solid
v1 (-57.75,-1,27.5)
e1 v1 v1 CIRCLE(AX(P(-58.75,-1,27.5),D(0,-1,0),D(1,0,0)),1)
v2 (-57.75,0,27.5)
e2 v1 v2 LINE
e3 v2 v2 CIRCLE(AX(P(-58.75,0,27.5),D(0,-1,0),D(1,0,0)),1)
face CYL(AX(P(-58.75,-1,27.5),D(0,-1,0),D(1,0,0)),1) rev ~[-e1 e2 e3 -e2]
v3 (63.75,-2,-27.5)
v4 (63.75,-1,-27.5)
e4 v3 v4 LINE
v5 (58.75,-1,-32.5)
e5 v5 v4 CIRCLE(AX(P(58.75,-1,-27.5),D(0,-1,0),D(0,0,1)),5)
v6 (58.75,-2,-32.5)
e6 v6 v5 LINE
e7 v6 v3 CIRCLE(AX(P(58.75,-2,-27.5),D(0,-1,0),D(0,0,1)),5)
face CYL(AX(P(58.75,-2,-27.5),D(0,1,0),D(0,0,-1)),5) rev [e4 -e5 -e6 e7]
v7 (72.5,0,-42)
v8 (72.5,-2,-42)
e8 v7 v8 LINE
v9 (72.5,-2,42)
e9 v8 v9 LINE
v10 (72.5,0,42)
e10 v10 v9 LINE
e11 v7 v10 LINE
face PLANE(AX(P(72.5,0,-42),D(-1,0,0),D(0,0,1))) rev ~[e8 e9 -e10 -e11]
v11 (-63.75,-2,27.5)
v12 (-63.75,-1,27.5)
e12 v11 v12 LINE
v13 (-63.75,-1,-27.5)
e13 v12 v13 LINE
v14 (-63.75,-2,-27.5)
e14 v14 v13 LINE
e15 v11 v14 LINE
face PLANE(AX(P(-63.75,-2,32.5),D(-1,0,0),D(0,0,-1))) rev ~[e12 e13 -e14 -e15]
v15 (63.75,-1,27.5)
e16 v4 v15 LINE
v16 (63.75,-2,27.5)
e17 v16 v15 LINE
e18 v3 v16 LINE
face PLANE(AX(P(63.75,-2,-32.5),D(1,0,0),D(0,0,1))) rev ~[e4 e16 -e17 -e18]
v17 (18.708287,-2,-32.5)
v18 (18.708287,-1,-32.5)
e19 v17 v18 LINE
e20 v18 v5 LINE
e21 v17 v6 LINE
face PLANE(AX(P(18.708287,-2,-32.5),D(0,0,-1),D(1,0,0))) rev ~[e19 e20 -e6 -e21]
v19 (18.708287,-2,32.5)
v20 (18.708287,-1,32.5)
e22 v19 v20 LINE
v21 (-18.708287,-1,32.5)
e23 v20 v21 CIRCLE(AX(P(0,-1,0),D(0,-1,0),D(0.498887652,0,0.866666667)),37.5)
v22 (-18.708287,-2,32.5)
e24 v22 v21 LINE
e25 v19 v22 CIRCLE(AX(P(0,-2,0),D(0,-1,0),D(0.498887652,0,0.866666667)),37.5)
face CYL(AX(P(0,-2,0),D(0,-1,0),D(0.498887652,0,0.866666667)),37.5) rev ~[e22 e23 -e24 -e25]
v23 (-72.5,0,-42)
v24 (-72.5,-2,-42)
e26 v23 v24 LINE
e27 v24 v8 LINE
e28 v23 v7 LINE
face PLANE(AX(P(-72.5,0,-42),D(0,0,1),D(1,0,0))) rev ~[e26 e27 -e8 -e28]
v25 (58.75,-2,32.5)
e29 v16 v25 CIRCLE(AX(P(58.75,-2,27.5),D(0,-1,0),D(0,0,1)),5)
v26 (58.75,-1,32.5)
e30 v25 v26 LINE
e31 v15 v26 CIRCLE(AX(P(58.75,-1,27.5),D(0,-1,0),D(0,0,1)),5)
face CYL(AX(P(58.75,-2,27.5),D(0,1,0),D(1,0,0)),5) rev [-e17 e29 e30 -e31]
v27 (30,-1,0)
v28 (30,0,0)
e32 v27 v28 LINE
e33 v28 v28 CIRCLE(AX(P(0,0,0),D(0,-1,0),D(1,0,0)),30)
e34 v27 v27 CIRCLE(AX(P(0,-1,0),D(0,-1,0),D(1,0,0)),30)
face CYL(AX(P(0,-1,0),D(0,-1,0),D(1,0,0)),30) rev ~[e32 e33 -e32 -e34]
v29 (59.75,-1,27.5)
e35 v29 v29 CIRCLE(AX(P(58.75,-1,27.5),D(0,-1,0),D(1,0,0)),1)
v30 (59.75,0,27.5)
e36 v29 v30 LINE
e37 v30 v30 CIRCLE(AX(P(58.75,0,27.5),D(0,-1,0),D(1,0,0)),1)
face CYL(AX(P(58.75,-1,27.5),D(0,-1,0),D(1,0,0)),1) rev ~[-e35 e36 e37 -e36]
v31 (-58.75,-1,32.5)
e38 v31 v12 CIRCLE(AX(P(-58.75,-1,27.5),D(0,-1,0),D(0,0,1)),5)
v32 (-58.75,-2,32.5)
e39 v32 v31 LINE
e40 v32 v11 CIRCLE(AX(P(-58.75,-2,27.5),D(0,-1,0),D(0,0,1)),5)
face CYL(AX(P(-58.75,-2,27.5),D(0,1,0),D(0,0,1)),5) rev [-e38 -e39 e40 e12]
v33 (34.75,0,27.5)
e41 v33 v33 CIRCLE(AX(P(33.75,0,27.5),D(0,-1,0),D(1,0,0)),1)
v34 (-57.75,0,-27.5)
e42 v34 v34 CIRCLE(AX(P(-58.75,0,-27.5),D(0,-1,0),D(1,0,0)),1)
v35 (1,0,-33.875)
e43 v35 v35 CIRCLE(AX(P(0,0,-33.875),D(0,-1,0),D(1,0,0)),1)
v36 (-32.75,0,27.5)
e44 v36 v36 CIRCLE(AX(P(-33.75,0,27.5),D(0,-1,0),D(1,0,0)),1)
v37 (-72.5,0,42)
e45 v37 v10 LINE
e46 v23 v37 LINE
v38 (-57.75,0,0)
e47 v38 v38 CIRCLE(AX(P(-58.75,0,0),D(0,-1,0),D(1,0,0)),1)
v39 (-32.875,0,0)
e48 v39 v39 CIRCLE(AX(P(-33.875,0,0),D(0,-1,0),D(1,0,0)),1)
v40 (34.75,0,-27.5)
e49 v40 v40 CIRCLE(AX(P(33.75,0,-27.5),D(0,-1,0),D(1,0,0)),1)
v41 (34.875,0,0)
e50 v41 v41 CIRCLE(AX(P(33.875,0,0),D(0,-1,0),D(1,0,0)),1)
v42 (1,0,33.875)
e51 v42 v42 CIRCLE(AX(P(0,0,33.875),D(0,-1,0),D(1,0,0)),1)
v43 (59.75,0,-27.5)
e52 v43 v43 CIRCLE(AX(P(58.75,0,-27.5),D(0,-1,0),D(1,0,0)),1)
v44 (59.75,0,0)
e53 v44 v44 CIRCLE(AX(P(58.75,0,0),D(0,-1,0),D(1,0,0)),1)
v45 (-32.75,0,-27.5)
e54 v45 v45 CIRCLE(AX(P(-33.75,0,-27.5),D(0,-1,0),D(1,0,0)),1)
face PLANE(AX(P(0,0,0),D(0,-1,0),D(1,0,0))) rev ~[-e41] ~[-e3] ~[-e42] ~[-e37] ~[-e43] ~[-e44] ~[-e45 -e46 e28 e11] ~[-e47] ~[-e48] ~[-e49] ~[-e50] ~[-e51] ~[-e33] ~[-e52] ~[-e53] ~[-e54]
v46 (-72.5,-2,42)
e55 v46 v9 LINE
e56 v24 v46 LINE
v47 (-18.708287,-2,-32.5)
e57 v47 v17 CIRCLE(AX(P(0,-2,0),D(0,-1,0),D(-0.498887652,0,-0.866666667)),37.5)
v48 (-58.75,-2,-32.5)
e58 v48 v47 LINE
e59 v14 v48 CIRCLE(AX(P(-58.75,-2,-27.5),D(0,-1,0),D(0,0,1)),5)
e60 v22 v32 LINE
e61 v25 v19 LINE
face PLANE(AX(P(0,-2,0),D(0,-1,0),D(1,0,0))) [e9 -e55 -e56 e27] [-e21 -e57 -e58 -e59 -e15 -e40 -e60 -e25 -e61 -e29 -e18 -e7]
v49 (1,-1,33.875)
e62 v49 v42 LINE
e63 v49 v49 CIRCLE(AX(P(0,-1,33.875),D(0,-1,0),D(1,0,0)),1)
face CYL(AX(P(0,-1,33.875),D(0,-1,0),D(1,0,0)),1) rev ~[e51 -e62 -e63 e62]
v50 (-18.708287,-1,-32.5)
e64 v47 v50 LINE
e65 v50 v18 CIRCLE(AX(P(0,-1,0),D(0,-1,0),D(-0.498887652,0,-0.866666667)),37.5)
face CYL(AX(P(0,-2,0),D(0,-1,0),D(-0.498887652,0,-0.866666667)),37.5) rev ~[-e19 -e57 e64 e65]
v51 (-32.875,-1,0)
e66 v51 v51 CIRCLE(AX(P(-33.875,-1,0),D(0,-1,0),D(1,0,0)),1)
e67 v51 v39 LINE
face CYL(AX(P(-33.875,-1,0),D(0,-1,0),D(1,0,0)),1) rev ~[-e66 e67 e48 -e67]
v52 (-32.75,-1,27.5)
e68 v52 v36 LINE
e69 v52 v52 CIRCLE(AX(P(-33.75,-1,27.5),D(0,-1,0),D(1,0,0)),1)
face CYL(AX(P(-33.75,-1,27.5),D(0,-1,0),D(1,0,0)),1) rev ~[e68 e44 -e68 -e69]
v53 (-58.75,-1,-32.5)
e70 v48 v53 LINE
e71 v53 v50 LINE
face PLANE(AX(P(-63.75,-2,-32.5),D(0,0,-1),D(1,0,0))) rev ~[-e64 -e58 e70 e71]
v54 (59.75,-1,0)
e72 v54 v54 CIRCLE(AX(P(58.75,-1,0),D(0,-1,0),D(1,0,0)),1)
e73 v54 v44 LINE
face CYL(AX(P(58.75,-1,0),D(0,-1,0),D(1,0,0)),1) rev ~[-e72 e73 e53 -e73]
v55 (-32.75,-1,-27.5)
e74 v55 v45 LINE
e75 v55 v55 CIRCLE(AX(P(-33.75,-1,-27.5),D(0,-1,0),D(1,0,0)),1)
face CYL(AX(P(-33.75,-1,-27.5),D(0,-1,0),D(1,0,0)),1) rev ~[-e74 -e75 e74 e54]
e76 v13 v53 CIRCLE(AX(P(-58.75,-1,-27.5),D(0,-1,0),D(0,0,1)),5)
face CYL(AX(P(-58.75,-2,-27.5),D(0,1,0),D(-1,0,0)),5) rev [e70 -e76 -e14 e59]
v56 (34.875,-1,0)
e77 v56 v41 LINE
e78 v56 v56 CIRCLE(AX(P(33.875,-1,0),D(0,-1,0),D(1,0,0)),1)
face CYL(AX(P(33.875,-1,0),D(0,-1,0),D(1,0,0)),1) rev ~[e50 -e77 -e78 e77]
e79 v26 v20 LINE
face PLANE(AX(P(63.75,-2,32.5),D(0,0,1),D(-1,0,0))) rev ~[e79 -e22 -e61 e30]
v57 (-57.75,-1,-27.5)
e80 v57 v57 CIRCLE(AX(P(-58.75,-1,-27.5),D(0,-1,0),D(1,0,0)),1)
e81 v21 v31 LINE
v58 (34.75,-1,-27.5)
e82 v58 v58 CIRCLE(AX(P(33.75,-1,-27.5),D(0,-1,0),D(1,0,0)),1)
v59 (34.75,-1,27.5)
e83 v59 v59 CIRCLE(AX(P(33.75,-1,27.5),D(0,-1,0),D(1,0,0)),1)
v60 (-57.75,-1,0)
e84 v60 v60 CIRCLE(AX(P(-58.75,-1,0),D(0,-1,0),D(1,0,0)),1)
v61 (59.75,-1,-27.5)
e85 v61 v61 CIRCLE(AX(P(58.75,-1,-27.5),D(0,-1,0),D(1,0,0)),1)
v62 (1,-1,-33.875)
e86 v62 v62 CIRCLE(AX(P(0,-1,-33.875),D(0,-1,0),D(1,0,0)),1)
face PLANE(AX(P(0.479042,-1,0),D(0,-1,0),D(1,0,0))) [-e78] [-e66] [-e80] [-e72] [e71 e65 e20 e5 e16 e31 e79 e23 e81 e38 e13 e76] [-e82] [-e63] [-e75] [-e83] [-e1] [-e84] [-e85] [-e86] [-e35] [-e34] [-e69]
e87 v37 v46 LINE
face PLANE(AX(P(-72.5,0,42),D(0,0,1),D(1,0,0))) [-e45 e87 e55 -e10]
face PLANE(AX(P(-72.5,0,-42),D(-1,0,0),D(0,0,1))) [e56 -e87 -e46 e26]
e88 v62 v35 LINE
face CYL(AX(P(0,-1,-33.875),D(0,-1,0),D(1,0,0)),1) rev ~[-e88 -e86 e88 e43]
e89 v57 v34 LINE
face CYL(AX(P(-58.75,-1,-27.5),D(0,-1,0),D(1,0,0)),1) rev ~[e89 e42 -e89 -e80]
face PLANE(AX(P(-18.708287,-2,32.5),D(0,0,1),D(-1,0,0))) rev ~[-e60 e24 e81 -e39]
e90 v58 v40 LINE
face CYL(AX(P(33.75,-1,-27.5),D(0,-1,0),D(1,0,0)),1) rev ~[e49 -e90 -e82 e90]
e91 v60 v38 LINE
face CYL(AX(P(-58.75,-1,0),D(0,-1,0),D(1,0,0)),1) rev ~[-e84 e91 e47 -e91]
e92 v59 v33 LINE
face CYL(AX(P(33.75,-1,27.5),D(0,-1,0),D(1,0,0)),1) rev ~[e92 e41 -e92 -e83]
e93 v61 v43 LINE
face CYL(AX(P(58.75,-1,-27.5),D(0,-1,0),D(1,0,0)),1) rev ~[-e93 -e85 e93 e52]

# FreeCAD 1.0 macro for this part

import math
import FreeCAD as App
import Part
import Sketcher
from FreeCAD import Vector


def edges_at(feature, points):
    """Names of the edges that pass closest to the given points."""
    edges = feature.Shape.Edges
    near = lambda p: min(range(len(edges)), key=lambda i: edges[i].distToShape(Part.Vertex(*p))[0])
    return sorted({f"Edge{near(p) + 1}" for p in points})

doc = App.newDocument("Part")
params = doc.addObject("Spreadsheet::Sheet", "Params")
for row, (alias, value) in enumerate([
    ("sketch1_width", "145 mm"),
    ("sketch1_height", "84 mm"),
    ("pad1_length", "2 mm"),
    ("sketch2_radius", "37.5 mm"),
    ("sketch2_height", "65 mm"),
    ("pocket1_length", "1 mm"),
    ("sketch3_diameter", "60 mm"),
    ("pocket2_length", "25 mm"),
    ("sketch4_diameter", "2 mm"),
    ("pocket3_length", "25 mm"),
    ("sketch5_diameter", "2 mm"),
    ("pocket4_length", "25 mm"),
    ("fillet_radius", "5 mm"),
], start=1):
    params.set(f"A{row}", alias)
    params.set(f"B{row}", "=" + value)
    params.setAlias(f"B{row}", alias)

body = doc.addObject("PartDesign::Body", "Body")

# Sketch on XZ plane
sketch1 = doc.addObject("Sketcher::SketchObject", "Sketch")
body.addObject(sketch1)
sketch1.AttachmentSupport = (doc.XZ_Plane, [""])
sketch1.MapMode = "FlatFace"
sketch1.addGeometry([
    Part.LineSegment(Vector(-72, 42, 0), Vector(-72, -42, 0)),
    Part.LineSegment(Vector(-72, -42, 0), Vector(72, -42, 0)),
    Part.LineSegment(Vector(72, -42, 0), Vector(72, 42, 0)),
    Part.LineSegment(Vector(72, 42, 0), Vector(-72, 42, 0)),
], False)
sketch1.addConstraint([
    Sketcher.Constraint("Coincident", 0, 2, 1, 1),
    Sketcher.Constraint("Coincident", 1, 2, 2, 1),
    Sketcher.Constraint("Coincident", 2, 2, 3, 1),
    Sketcher.Constraint("Coincident", 3, 2, 0, 1),
    Sketcher.Constraint("Vertical", 0),
    Sketcher.Constraint("Horizontal", 1),
    Sketcher.Constraint("Vertical", 2),
    Sketcher.Constraint("Horizontal", 3),
    Sketcher.Constraint("Symmetric", 0, 2, 2, 2, -1, 1),
    Sketcher.Constraint("DistanceX", 1, 1, 1, 2, 145.0),
    Sketcher.Constraint("DistanceY", 0, 2, 0, 1, 84.0),
])
sketch1.setExpression("Constraints[9]", "Params.sketch1_width")
sketch1.setExpression("Constraints[10]", "Params.sketch1_height")
pad1 = doc.addObject("PartDesign::Pad", "Pad")
body.addObject(pad1)
pad1.Profile = sketch1
pad1.setExpression("Length", "Params.pad1_length")

# Sketch on XZ plane
sketch2 = doc.addObject("Sketcher::SketchObject", "Sketch001")
body.addObject(sketch2)
sketch2.AttachmentSupport = (doc.XZ_Plane, [""])
sketch2.MapMode = "FlatFace"
sketch2.AttachmentOffset = App.Placement(Vector(0, 0, 2), App.Rotation())
sketch2.addGeometry([
    Part.ArcOfCircle(Part.Circle(Vector(0, 0, 0), Vector(0, 0, 1), 38), math.radians(-120), math.radians(-60)),  # 0
    Part.LineSegment(Vector(19, -32, 0), Vector(64, -32, 0)),  # 1
    Part.LineSegment(Vector(64, -32, 0), Vector(64, 32, 0)),  # 2
    Part.LineSegment(Vector(64, 32, 0), Vector(19, 32, 0)),  # 3
    Part.ArcOfCircle(Part.Circle(Vector(0, 0, 0), Vector(0, 0, 1), 38), math.radians(60), math.radians(120)),  # 4
    Part.LineSegment(Vector(-19, 32, 0), Vector(-64, 32, 0)),  # 5
    Part.LineSegment(Vector(-64, 32, 0), Vector(-64, -32, 0)),  # 6
    Part.LineSegment(Vector(-64, -32, 0), Vector(-19, -32, 0)),  # 7
], False)
sketch2.addConstraint([
    Sketcher.Constraint("Coincident", 0, 2, 1, 1),
    Sketcher.Constraint("Coincident", 1, 2, 2, 1),
    Sketcher.Constraint("Coincident", 2, 2, 3, 1),
    Sketcher.Constraint("Coincident", 3, 2, 4, 1),
    Sketcher.Constraint("Coincident", 4, 2, 5, 1),
    Sketcher.Constraint("Coincident", 5, 2, 6, 1),
    Sketcher.Constraint("Coincident", 6, 2, 7, 1),
    Sketcher.Constraint("Coincident", 7, 2, 0, 1),
    Sketcher.Constraint("Horizontal", 1),
    Sketcher.Constraint("Vertical", 2),
    Sketcher.Constraint("Horizontal", 3),
    Sketcher.Constraint("Horizontal", 5),
    Sketcher.Constraint("Vertical", 6),
    Sketcher.Constraint("Horizontal", 7),
    Sketcher.Constraint("Coincident", 0, 3, -1, 1),
    Sketcher.Constraint("Coincident", 4, 3, -1, 1),
    Sketcher.Constraint("Equal", 0, 4),
    Sketcher.Constraint("Symmetric", 1, 2, 5, 2, -1, 1),
    Sketcher.Constraint("Horizontal", 3, 2, 4, 2),
    Sketcher.Constraint("Horizontal", 1, 2, 6, 2),
    Sketcher.Constraint("Radius", 0, 37.5),
    Sketcher.Constraint("DistanceY", 2, 1, 2, 2, 65.0),
    Sketcher.Constraint("DistanceX", -1, 1, 1, 2, 63.75),
])
sketch2.setExpression("Constraints[20]", "Params.sketch2_radius")
sketch2.setExpression("Constraints[21]", "Params.sketch2_height")
pocket1 = doc.addObject("PartDesign::Pocket", "Pocket")
body.addObject(pocket1)
pocket1.Profile = sketch2
pocket1.setExpression("Length", "Params.pocket1_length")

# Sketch on XZ plane
sketch3 = doc.addObject("Sketcher::SketchObject", "Sketch002")
body.addObject(sketch3)
sketch3.AttachmentSupport = (doc.XZ_Plane, [""])
sketch3.MapMode = "FlatFace"
sketch3.AttachmentOffset = App.Placement(Vector(0, 0, 1), App.Rotation())
sketch3.addGeometry(Part.Circle(Vector(0, 0, 0), Vector(0, 0, 1), 30), False)
sketch3.addConstraint([
    Sketcher.Constraint("Coincident", 0, 3, -1, 1),
    Sketcher.Constraint("Diameter", 0, 60.0),
])
sketch3.setExpression("Constraints[1]", "Params.sketch3_diameter")
pocket2 = doc.addObject("PartDesign::Pocket", "Pocket001")
body.addObject(pocket2)
pocket2.Profile = sketch3
pocket2.setExpression("Length", "Params.pocket2_length")

# Sketch on XZ plane
sketch4 = doc.addObject("Sketcher::SketchObject", "Sketch003")
body.addObject(sketch4)
sketch4.AttachmentSupport = (doc.XZ_Plane, [""])
sketch4.MapMode = "FlatFace"
sketch4.AttachmentOffset = App.Placement(Vector(0, 0, 1), App.Rotation())
sketch4.addGeometry([
    Part.Circle(Vector(-58.8, 27.5, 0), Vector(0, 0, 1), 1),  # 0
    Part.Circle(Vector(-58.8, -27.5, 0), Vector(0, 0, 1), 1),  # 1
    Part.Circle(Vector(58.8, -27.5, 0), Vector(0, 0, 1), 1),  # 2
    Part.Circle(Vector(58.8, 27.5, 0), Vector(0, 0, 1), 1),  # 3
    Part.Circle(Vector(-58.8, 0, 0), Vector(0, 0, 1), 1),  # 4
    Part.Circle(Vector(58.8, 0, 0), Vector(0, 0, 1), 1),  # 5
    Part.Circle(Vector(-33.8, 27.5, 0), Vector(0, 0, 1), 1),  # 6
    Part.Circle(Vector(33.8, 27.5, 0), Vector(0, 0, 1), 1),  # 7
    Part.Circle(Vector(33.8, -27.5, 0), Vector(0, 0, 1), 1),  # 8
    Part.Circle(Vector(-33.8, -27.5, 0), Vector(0, 0, 1), 1),  # 9
], False)
sketch4.addConstraint([
    Sketcher.Constraint("Equal", 0, 1),
    Sketcher.Constraint("Equal", 1, 2),
    Sketcher.Constraint("Equal", 2, 3),
    Sketcher.Constraint("Equal", 3, 4),
    Sketcher.Constraint("Equal", 4, 5),
    Sketcher.Constraint("Equal", 5, 6),
    Sketcher.Constraint("Equal", 6, 7),
    Sketcher.Constraint("Equal", 7, 8),
    Sketcher.Constraint("Equal", 8, 9),
    Sketcher.Constraint("Symmetric", 0, 3, 2, 3, -1, 1),
    Sketcher.Constraint("Symmetric", 1, 3, 3, 3, -1, 1),
    Sketcher.Constraint("Symmetric", 4, 3, 5, 3, -1, 1),
    Sketcher.Constraint("Symmetric", 6, 3, 8, 3, -1, 1),
    Sketcher.Constraint("Symmetric", 7, 3, 9, 3, -1, 1),
    Sketcher.Constraint("Symmetric", 1, 3, 2, 3, -2),
    Sketcher.Constraint("Symmetric", 6, 3, 7, 3, -2),
    Sketcher.Constraint("PointOnObject", 4, 3, -1),
    Sketcher.Constraint("Horizontal", 3, 3, 6, 3),
    Sketcher.Constraint("Vertical", 1, 3, 4, 3),
    Sketcher.Constraint("Diameter", 0, 2.0),
    Sketcher.Constraint("DistanceY", 1, 3, 0, 3, 55.0),
    Sketcher.Constraint("DistanceX", 0, 3, 6, 3, 25.0),
    Sketcher.Constraint("DistanceX", 1, 3, 2, 3, 117.5),
])
sketch4.setExpression("Constraints[19]", "Params.sketch4_diameter")
pocket3 = doc.addObject("PartDesign::Pocket", "Pocket002")
body.addObject(pocket3)
pocket3.Profile = sketch4
pocket3.setExpression("Length", "Params.pocket3_length")

# Sketch on XZ plane
sketch5 = doc.addObject("Sketcher::SketchObject", "Sketch004")
body.addObject(sketch5)
sketch5.AttachmentSupport = (doc.XZ_Plane, [""])
sketch5.MapMode = "FlatFace"
sketch5.AttachmentOffset = App.Placement(Vector(0, 0, 1), App.Rotation())
sketch5.addGeometry([
    Part.Circle(Vector(0, 33.9, 0), Vector(0, 0, 1), 1),
    Part.Circle(Vector(33.9, 0, 0), Vector(0, 0, 1), 1),
    Part.Circle(Vector(-33.9, 0, 0), Vector(0, 0, 1), 1),
    Part.Circle(Vector(0, -33.9, 0), Vector(0, 0, 1), 1),
], False)
sketch5.addConstraint([
    Sketcher.Constraint("Equal", 0, 1),
    Sketcher.Constraint("Equal", 1, 2),
    Sketcher.Constraint("Equal", 2, 3),
    Sketcher.Constraint("Symmetric", 1, 3, 2, 3, -1, 1),
    Sketcher.Constraint("Symmetric", 0, 3, 3, 3, -1, 1),
    Sketcher.Constraint("PointOnObject", 0, 3, -2),
    Sketcher.Constraint("PointOnObject", 1, 3, -1),
    Sketcher.Constraint("Diameter", 0, 2.0),
    Sketcher.Constraint("DistanceX", 2, 3, 1, 3, 67.75),
    Sketcher.Constraint("DistanceY", 3, 3, 0, 3, 67.75),
])
sketch5.setExpression("Constraints[7]", "Params.sketch5_diameter")
pocket4 = doc.addObject("PartDesign::Pocket", "Pocket003")
body.addObject(pocket4)
pocket4.Profile = sketch5
pocket4.setExpression("Length", "Params.pocket4_length")
doc.recompute()

fillet = doc.addObject("PartDesign::Fillet", "Fillet")
body.addObject(fillet)
fillet.Base = (pocket4, edges_at(pocket4, [
    (-63.75, -1.5, 32.5),
    (-63.75, -1.5, -32.5),
    (63.75, -1.5, 32.5),
    (63.75, -1.5, -32.5),
]))
fillet.setExpression("Radius", "Params.fillet_radius")

doc.recompute()
